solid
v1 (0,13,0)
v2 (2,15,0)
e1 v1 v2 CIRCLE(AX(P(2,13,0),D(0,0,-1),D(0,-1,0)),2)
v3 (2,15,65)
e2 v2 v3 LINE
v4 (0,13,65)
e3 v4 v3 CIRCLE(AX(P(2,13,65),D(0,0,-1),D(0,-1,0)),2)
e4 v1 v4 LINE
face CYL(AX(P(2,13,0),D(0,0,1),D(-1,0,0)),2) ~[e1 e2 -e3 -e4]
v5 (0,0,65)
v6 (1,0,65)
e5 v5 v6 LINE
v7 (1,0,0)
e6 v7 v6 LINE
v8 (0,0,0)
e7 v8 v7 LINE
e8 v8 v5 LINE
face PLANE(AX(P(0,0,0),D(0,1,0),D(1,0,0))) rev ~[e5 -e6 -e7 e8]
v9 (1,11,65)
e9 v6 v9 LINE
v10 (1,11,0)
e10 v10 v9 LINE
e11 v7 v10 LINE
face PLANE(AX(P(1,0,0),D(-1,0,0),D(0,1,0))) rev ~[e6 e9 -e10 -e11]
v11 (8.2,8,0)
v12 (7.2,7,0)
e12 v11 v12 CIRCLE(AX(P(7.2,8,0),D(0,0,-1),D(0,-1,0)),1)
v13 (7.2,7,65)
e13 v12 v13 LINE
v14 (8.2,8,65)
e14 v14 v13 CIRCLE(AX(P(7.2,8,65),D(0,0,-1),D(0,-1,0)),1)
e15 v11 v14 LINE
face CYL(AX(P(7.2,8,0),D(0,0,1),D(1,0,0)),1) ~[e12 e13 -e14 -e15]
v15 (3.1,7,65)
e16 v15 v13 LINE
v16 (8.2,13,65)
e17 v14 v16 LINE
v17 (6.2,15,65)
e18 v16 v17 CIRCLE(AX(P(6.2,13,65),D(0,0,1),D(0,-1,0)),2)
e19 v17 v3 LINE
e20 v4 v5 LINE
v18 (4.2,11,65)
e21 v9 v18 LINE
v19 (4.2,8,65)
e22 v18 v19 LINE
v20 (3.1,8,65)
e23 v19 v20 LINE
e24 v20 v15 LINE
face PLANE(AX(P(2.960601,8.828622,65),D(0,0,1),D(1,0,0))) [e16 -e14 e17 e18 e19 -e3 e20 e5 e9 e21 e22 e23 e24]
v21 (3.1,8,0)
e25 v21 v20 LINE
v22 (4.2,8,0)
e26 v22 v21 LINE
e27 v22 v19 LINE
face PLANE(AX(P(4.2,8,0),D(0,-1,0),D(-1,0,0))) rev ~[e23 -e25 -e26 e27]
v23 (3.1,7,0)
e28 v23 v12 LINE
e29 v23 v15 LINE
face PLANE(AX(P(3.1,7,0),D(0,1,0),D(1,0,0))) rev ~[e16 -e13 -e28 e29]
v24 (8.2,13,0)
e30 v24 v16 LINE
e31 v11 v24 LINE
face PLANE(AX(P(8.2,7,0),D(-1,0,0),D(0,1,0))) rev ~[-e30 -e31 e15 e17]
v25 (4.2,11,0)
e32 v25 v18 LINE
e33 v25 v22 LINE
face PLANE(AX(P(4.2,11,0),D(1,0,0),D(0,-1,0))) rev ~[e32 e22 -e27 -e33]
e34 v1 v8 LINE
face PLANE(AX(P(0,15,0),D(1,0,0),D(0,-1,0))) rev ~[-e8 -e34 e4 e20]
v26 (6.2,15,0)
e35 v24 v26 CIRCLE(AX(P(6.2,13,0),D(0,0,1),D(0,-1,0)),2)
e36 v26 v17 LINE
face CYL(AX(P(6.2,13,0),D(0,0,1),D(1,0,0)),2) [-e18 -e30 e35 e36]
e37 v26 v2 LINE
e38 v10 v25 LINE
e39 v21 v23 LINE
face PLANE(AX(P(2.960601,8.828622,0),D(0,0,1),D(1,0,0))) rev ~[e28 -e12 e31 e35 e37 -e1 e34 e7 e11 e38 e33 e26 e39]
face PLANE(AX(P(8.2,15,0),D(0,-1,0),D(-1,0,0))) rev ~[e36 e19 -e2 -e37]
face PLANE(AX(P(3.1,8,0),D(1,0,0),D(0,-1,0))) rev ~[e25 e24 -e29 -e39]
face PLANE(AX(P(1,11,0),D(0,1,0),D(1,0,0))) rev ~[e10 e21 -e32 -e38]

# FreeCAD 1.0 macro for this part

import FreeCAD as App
import Part
import Sketcher

V = App.Vector
Q = App.Units.Quantity


def edges_at(feature, points):
    """Names of the edges that pass closest to the given points."""
    edges = feature.Shape.Edges
    near = lambda p: min(range(len(edges)), key=lambda i: edges[i].distToShape(Part.Vertex(*p))[0])
    return sorted({f"Edge{near(p) + 1}" for p in points})

doc = App.newDocument("Part")
body = doc.addObject("PartDesign::Body", "Body")

# Sketch on XY plane
sketch1 = body.newObject("Sketcher::SketchObject", "Sketch")
sketch1.AttachmentSupport = (doc.getObject("XY_Plane"), [""])
sketch1.MapMode = "FlatFace"
sketch1.addGeometry([
    Part.LineSegment(V(0, 15, 0), V(0, 0, 0)),  # 0
    Part.LineSegment(V(0, 0, 0), V(1, 0, 0)),  # 1
    Part.LineSegment(V(1, 0, 0), V(1, 11, 0)),  # 2
    Part.LineSegment(V(1, 11, 0), V(4.2, 11, 0)),  # 3
    Part.LineSegment(V(4.2, 11, 0), V(4.2, 8, 0)),  # 4
    Part.LineSegment(V(4.2, 8, 0), V(3.1, 8, 0)),  # 5
    Part.LineSegment(V(3.1, 8, 0), V(3.1, 7, 0)),  # 6
    Part.LineSegment(V(3.1, 7, 0), V(8.2, 7, 0)),  # 7
    Part.LineSegment(V(8.2, 7, 0), V(8.2, 15, 0)),  # 8
    Part.LineSegment(V(8.2, 15, 0), V(0, 15, 0)),  # 9
], False)
sketch1.addConstraint([
    Sketcher.Constraint("Coincident", 0, 2, 1, 1),
    Sketcher.Constraint("Coincident", 1, 2, 2, 1),
    Sketcher.Constraint("Coincident", 2, 2, 3, 1),
    Sketcher.Constraint("Coincident", 3, 2, 4, 1),
    Sketcher.Constraint("Coincident", 4, 2, 5, 1),
    Sketcher.Constraint("Coincident", 5, 2, 6, 1),
    Sketcher.Constraint("Coincident", 6, 2, 7, 1),
    Sketcher.Constraint("Coincident", 7, 2, 8, 1),
    Sketcher.Constraint("Coincident", 8, 2, 9, 1),
    Sketcher.Constraint("Coincident", 9, 2, 0, 1),
    Sketcher.Constraint("Vertical", 0),
    Sketcher.Constraint("Horizontal", 1),
    Sketcher.Constraint("Vertical", 2),
    Sketcher.Constraint("Horizontal", 3),
    Sketcher.Constraint("Vertical", 4),
    Sketcher.Constraint("Horizontal", 5),
    Sketcher.Constraint("Vertical", 6),
    Sketcher.Constraint("Horizontal", 7),
    Sketcher.Constraint("Vertical", 8),
    Sketcher.Constraint("Horizontal", 9),
    Sketcher.Constraint("Coincident", 0, 2, -1, 1),
    Sketcher.Constraint("Equal", 1, 6),
    Sketcher.Constraint("DistanceX", 1, 1, 1, 2, Q("1 mm")),
    Sketcher.Constraint("DistanceY", 0, 2, 0, 1, Q("15 mm")),
    Sketcher.Constraint("DistanceY", 2, 1, 2, 2, Q("11 mm")),
    Sketcher.Constraint("DistanceY", 4, 2, 4, 1, Q("3 mm")),
    Sketcher.Constraint("DistanceX", 3, 1, 3, 2, Q("3.2 mm")),
    Sketcher.Constraint("DistanceX", 5, 2, 5, 1, Q("1.1 mm")),
    Sketcher.Constraint("DistanceX", 7, 1, 7, 2, Q("5.1 mm")),
])
pad1 = body.newObject("PartDesign::Pad", "Pad")
pad1.Profile = sketch1
pad1.Length = 65
doc.recompute()

fillet = body.newObject("PartDesign::Fillet", "Fillet")
fillet.Base = (pad1, edges_at(pad1, [(8.2, 15, 32.5), (0, 15, 32.5)]))
fillet.Radius = 2
doc.recompute()

fillet2 = body.newObject("PartDesign::Fillet", "Fillet001")
fillet2.Base = (fillet, edges_at(fillet, [(8.2, 7, 32.5)]))
fillet2.Radius = 1

doc.recompute()
